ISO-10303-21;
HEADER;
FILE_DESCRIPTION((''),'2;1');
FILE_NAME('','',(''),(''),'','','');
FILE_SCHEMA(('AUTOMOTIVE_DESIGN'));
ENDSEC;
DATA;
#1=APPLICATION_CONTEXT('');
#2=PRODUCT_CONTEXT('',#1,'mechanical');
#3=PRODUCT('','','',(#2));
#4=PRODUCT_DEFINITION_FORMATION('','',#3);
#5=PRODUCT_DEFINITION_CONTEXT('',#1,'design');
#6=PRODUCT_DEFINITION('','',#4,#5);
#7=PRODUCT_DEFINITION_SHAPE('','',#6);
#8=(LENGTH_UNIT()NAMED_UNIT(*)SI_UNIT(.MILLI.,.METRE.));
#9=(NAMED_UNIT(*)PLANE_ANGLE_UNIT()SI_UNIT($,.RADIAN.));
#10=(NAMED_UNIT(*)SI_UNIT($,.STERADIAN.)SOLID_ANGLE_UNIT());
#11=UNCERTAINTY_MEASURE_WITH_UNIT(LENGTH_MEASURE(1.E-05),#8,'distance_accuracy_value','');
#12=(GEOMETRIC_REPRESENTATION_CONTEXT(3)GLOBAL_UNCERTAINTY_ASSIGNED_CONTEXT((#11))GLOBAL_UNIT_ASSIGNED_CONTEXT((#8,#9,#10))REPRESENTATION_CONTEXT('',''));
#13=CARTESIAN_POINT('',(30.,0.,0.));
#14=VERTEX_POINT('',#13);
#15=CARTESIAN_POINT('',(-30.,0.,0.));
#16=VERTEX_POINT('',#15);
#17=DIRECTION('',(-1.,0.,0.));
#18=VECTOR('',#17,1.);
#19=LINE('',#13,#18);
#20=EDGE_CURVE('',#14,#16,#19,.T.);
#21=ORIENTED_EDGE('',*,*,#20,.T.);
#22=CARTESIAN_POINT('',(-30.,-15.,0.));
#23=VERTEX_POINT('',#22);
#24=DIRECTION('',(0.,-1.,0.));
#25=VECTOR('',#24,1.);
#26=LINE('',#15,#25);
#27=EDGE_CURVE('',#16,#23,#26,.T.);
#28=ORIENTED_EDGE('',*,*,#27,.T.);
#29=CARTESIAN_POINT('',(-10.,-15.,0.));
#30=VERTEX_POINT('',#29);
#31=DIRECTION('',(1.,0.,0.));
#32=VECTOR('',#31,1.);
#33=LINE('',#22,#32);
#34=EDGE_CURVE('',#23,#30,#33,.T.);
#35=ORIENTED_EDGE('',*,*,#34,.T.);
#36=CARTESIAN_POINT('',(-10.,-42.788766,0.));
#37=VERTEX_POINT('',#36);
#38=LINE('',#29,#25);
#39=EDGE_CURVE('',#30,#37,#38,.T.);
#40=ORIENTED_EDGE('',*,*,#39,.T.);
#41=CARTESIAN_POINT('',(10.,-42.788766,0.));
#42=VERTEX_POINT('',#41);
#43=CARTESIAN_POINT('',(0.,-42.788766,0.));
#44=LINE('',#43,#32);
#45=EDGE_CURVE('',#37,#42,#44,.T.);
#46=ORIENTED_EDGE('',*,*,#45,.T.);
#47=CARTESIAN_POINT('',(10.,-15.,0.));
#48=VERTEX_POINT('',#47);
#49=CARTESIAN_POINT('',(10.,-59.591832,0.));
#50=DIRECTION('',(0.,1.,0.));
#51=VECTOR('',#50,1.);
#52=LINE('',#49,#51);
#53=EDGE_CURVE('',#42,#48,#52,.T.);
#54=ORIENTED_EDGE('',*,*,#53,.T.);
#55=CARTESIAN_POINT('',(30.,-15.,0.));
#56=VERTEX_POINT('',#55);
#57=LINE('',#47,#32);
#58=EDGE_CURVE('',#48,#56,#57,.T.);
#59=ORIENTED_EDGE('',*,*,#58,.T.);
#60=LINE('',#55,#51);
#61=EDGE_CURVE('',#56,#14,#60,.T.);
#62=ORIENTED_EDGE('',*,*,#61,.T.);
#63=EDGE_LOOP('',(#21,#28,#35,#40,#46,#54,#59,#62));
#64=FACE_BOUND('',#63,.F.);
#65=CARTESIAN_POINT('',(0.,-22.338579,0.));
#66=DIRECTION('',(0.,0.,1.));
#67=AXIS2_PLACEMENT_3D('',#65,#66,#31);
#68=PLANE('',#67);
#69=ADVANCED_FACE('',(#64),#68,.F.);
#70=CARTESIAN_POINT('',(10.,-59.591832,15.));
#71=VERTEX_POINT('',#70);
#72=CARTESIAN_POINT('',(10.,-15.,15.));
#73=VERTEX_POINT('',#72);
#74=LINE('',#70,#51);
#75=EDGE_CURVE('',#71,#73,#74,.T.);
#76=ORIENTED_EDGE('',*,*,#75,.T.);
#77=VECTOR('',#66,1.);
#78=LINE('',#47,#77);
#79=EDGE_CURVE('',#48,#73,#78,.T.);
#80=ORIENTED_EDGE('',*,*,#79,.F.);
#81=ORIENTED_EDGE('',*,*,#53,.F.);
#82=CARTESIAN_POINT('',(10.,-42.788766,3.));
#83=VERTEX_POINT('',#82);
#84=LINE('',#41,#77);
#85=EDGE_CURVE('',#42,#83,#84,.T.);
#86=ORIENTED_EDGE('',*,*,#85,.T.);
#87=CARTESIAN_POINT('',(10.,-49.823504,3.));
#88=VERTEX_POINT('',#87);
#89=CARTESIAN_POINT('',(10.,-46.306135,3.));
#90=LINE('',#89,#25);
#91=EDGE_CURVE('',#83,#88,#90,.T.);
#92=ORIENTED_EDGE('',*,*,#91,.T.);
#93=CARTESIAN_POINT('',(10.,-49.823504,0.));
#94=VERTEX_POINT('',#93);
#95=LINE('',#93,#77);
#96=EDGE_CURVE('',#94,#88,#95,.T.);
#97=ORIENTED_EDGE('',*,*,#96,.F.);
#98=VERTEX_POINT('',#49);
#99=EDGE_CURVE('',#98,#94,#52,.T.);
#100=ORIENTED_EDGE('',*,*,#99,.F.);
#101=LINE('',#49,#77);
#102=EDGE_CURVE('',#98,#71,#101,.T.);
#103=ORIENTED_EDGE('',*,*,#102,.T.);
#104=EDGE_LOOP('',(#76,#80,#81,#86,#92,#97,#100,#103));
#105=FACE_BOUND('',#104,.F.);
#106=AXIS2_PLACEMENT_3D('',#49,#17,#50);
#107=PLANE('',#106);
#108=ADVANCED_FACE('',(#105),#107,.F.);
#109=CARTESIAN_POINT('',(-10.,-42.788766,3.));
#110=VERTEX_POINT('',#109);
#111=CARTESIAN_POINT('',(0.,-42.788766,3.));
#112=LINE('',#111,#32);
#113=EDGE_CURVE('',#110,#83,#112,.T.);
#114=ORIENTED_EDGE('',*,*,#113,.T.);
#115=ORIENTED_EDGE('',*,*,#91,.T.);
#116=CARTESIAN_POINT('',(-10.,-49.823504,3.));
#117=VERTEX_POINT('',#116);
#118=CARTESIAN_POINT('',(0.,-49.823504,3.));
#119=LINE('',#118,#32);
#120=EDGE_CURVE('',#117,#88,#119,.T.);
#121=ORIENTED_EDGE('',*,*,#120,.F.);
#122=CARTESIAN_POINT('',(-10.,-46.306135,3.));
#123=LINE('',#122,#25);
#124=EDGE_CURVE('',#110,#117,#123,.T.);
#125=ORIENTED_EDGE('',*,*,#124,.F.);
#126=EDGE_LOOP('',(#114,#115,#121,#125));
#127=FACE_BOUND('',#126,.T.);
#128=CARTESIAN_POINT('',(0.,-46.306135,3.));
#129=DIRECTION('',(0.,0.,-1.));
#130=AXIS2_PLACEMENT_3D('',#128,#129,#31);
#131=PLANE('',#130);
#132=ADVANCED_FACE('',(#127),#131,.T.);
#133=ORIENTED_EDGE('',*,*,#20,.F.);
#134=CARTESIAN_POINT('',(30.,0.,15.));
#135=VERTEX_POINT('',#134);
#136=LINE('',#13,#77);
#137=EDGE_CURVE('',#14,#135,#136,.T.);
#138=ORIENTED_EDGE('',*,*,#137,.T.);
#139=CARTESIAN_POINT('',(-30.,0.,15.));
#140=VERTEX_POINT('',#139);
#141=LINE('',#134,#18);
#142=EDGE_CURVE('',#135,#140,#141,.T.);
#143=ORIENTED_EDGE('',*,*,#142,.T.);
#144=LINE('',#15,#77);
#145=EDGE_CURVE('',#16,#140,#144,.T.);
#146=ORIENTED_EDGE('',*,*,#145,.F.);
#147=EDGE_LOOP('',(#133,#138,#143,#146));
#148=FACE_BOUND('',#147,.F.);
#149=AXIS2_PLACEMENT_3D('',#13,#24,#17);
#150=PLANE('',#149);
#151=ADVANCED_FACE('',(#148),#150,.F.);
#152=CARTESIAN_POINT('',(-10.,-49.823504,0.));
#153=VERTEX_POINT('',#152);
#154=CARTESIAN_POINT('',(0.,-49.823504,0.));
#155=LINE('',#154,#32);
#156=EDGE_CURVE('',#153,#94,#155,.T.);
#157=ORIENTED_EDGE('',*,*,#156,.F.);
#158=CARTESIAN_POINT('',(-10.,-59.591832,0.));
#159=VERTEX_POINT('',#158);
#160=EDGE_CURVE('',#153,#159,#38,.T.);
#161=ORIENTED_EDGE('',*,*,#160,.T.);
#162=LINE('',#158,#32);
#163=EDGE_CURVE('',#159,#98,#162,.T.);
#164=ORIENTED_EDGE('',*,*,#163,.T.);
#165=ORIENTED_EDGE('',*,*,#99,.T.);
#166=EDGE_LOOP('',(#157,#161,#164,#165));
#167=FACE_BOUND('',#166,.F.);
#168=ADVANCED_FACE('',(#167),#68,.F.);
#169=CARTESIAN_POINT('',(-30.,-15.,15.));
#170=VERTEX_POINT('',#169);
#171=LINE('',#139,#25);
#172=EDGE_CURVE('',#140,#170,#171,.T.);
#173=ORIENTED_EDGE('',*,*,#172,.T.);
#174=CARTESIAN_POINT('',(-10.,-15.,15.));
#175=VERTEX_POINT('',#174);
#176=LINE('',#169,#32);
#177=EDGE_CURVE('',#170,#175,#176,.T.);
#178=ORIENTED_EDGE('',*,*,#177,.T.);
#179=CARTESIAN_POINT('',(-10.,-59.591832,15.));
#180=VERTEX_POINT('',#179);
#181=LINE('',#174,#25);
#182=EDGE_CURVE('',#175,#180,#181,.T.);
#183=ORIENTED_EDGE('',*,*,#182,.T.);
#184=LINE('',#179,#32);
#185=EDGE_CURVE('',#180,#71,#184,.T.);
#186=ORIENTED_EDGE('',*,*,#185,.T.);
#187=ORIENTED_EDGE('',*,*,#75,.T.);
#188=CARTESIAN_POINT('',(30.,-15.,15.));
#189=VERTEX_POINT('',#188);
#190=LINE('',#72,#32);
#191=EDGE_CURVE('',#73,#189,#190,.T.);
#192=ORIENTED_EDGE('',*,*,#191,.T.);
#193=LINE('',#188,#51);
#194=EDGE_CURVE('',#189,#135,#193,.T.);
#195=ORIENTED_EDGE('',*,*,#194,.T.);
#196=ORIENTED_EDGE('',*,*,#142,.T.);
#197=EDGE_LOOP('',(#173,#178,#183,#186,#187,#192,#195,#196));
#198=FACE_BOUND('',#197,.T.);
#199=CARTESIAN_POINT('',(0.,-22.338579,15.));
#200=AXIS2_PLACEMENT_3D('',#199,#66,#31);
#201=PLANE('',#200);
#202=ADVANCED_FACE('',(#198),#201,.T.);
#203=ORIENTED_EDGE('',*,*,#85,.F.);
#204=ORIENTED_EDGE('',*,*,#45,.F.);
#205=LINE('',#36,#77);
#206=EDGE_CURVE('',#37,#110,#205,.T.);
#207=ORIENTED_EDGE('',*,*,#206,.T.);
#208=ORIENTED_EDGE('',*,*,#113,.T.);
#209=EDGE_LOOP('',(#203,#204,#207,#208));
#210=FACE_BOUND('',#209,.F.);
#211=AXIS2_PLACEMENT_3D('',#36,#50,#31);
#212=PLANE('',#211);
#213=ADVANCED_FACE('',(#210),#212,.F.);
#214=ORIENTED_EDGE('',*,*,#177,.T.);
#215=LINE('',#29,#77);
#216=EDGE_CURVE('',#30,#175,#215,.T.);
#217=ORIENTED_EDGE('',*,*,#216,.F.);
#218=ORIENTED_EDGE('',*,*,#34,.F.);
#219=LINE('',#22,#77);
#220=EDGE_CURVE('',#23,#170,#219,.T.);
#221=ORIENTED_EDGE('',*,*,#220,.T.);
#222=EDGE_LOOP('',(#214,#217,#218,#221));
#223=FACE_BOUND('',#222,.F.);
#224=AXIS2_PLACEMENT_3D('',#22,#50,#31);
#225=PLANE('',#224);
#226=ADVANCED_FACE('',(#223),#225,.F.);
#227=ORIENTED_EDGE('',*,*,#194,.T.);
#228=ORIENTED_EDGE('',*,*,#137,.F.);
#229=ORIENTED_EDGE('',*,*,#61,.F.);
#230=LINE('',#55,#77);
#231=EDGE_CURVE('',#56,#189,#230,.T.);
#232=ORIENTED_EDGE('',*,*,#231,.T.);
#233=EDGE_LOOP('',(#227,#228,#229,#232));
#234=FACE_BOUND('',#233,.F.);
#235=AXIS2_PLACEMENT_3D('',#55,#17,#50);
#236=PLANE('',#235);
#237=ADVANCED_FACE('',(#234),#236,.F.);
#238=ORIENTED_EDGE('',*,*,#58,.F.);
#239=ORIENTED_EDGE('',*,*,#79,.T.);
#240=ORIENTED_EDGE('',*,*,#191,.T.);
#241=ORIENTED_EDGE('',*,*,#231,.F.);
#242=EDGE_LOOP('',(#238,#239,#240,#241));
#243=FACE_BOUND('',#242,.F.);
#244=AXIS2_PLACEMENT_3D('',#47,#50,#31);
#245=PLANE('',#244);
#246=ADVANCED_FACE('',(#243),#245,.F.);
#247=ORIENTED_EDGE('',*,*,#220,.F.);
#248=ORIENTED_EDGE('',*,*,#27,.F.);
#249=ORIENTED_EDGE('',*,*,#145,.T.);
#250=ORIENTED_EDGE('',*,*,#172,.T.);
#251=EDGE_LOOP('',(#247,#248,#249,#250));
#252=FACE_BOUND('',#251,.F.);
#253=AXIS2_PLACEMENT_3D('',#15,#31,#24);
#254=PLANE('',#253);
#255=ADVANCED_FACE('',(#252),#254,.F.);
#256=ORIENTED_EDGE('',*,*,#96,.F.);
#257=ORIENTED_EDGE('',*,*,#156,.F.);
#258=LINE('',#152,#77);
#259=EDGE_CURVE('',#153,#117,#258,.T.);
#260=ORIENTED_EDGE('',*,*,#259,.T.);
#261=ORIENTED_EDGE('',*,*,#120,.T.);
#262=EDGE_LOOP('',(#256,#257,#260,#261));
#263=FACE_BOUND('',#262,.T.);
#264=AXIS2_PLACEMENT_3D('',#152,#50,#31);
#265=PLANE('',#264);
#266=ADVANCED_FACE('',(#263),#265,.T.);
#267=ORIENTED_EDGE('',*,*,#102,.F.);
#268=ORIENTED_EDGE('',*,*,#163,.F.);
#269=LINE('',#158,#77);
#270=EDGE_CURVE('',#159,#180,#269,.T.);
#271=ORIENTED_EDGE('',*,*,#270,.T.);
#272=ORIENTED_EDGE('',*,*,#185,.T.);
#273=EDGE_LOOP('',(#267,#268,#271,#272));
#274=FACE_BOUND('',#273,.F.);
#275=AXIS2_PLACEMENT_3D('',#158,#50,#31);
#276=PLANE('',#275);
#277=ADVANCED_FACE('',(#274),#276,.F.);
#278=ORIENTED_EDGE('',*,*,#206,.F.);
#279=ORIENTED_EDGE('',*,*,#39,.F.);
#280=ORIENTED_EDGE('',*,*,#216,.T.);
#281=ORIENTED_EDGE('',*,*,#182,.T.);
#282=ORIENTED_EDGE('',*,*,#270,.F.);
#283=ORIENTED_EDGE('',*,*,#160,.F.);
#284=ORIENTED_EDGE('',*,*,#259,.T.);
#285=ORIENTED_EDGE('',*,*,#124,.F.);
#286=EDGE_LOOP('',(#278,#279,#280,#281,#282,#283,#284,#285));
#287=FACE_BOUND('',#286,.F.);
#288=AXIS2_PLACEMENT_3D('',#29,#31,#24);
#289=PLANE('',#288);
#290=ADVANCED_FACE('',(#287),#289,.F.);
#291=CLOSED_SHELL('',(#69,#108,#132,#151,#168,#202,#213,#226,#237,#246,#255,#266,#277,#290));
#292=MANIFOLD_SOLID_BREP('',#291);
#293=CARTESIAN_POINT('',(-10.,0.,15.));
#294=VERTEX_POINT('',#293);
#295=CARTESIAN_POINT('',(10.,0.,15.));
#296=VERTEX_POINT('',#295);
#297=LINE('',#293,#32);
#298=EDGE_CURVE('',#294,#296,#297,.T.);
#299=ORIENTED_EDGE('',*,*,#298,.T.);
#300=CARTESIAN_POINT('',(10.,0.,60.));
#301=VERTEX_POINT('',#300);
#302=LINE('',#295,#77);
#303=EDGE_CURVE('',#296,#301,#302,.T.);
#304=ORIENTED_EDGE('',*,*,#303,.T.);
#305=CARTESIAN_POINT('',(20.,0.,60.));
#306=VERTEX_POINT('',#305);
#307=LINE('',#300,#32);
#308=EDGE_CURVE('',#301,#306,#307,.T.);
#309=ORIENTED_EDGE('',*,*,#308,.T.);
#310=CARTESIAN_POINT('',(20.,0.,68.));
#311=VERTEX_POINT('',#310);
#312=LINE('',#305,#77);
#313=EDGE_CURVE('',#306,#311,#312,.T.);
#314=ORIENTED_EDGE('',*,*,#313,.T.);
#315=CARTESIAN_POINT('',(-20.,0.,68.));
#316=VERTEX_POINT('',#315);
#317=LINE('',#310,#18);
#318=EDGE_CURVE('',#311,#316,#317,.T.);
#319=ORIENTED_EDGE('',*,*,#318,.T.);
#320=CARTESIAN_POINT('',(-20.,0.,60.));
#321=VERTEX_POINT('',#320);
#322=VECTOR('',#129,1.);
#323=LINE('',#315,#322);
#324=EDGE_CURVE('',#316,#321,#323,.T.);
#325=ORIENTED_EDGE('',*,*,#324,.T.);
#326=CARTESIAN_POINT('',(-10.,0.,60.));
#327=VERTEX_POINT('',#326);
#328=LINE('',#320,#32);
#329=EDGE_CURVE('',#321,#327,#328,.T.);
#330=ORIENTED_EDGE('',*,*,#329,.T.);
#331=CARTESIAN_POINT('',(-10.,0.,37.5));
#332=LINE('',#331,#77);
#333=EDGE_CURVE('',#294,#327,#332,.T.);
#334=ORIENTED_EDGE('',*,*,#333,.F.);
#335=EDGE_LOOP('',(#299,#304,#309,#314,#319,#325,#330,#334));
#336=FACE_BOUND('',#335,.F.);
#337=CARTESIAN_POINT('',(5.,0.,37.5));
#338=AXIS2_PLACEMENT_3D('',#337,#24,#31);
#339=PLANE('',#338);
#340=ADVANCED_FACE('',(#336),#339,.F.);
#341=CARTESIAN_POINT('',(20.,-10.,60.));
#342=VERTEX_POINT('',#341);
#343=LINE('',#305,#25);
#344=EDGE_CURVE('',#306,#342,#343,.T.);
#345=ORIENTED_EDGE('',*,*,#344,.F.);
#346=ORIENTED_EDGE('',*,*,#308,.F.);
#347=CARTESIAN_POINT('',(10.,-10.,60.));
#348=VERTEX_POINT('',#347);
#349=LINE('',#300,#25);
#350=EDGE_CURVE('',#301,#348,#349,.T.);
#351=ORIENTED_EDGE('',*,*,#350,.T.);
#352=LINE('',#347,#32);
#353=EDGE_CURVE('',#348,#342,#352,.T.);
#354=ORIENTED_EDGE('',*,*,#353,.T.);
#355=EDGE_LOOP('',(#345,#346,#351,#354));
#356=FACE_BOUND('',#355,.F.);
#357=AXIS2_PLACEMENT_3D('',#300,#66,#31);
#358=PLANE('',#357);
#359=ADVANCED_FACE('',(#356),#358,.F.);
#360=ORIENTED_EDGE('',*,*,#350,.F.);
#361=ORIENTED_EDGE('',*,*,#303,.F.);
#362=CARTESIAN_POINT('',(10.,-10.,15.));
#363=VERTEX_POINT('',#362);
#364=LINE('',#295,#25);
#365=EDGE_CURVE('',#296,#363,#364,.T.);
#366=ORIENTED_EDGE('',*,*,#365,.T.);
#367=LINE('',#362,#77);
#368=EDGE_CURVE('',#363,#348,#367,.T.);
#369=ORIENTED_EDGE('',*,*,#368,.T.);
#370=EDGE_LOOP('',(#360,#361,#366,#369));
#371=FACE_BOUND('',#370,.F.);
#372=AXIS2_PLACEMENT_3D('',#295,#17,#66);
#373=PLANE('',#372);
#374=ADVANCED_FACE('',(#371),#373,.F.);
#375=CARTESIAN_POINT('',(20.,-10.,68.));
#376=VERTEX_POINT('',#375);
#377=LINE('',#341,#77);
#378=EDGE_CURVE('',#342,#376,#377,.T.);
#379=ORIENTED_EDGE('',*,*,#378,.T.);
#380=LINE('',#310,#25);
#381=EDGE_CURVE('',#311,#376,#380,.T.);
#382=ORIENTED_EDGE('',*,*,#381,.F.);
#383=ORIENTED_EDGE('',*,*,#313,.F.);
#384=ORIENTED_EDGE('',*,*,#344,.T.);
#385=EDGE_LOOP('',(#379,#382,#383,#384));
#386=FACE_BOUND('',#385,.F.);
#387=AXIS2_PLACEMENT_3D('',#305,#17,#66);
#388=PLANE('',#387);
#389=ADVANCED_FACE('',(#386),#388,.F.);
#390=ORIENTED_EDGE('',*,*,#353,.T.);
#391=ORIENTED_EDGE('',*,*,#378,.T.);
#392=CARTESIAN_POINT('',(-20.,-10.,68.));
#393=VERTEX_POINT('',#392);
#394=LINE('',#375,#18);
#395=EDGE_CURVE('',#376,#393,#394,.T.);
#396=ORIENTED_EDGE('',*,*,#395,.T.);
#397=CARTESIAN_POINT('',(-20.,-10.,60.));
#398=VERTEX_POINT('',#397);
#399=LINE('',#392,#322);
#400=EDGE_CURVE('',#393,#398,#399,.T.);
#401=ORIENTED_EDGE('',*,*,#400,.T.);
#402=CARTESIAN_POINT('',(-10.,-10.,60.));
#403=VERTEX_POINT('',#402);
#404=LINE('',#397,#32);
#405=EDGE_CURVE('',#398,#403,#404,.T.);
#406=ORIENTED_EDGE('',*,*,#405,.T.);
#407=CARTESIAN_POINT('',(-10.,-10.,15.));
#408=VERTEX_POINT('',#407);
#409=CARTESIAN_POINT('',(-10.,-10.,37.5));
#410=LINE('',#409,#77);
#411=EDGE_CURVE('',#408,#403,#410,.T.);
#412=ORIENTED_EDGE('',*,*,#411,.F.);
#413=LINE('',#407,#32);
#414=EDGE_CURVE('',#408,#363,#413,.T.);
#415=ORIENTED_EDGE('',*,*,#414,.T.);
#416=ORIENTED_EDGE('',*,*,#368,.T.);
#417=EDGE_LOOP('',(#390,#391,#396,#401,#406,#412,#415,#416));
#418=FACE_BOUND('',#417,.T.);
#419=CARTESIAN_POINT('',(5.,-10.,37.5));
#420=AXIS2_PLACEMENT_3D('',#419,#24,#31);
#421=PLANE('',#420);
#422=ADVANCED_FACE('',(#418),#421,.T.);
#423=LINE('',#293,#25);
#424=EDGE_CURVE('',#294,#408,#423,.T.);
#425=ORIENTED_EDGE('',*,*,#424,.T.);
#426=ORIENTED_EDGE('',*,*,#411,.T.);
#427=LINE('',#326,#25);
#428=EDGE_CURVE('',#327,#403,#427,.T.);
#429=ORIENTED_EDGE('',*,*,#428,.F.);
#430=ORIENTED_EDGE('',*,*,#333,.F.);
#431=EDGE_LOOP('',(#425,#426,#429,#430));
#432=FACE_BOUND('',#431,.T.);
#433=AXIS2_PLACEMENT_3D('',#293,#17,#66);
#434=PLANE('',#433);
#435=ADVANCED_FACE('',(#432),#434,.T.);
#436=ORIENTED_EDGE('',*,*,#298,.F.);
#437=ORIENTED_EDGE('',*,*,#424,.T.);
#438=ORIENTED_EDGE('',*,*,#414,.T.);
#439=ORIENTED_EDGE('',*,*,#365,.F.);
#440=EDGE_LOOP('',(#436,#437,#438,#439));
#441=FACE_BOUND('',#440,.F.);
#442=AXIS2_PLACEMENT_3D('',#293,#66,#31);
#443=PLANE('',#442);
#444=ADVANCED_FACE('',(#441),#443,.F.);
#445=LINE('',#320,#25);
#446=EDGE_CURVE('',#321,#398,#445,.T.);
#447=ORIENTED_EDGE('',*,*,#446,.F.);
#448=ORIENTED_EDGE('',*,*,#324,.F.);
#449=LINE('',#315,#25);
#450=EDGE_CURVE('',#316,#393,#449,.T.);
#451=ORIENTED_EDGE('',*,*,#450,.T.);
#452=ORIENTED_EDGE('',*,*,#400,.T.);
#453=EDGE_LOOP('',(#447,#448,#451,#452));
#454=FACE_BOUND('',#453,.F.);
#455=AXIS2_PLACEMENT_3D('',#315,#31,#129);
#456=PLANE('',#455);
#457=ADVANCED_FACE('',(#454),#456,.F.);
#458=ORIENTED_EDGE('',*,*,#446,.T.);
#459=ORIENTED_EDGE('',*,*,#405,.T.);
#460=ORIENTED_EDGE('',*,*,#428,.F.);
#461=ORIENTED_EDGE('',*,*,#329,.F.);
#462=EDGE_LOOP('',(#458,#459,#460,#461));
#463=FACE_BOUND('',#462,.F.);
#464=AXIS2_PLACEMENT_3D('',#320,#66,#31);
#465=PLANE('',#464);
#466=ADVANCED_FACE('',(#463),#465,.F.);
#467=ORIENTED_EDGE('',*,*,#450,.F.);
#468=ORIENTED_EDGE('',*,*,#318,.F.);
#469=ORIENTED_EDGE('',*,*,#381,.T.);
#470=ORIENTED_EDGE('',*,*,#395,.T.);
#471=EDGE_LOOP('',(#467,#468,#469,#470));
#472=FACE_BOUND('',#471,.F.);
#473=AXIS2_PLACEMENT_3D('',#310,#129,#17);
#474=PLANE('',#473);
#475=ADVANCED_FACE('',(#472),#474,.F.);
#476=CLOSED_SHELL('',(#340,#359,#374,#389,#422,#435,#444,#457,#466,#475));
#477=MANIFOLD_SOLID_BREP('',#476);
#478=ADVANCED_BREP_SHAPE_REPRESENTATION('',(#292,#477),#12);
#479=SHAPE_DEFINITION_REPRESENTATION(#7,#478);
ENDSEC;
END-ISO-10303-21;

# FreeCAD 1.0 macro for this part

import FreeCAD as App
import Part
import Sketcher


def add_polygon(sketch, points):
    """Adds a closed chain of lines whose ends are joined by coincident constraints."""
    first, n = sketch.GeometryCount, len(points)
    for a, b in zip(points, points[1:] + points[:1]):
        sketch.addGeometry(Part.LineSegment(App.Vector(*a, 0), App.Vector(*b, 0)), False)
    for i in range(n):
        sketch.addConstraint(Sketcher.Constraint("Coincident", first + i, 2, first + (i + 1) % n, 1))

doc = App.newDocument("Part")
body = doc.addObject("PartDesign::Body", "Body")

# Sketch on XY plane
sketch1 = body.newObject("Sketcher::SketchObject", "Sketch")
sketch1.AttachmentSupport = (doc.getObject("XY_Plane"), [""])
sketch1.MapMode = "FlatFace"
add_polygon(sketch1, [(30, 0), (-30, 0), (-30, -15), (-10, -15), (-10, -60), (10, -60), (10, -15), (30, -15)])  # lines 0-7
sketch1.addConstraint([
    Sketcher.Constraint("Horizontal", 0),
    Sketcher.Constraint("Vertical", 1),
    Sketcher.Constraint("Horizontal", 2),
    Sketcher.Constraint("Vertical", 3),
    Sketcher.Constraint("Horizontal", 4),
    Sketcher.Constraint("Vertical", 5),
    Sketcher.Constraint("Horizontal", 6),
    Sketcher.Constraint("Vertical", 7),
    Sketcher.Constraint("Symmetric", 0, 2, 7, 2, -1, 1),
    Sketcher.Constraint("Symmetric", 2, 2, 5, 2, -2),
    Sketcher.Constraint("Equal", 2, 4),
    Sketcher.Constraint("DistanceX", 0, 2, 0, 1, 60.0),
    Sketcher.Constraint("DistanceY", 1, 2, 1, 1, 15.0),
    Sketcher.Constraint("DistanceY", 3, 2, 3, 1, 44.591832),
])
pad1 = body.newObject("PartDesign::Pad", "Pad")
pad1.Profile = sketch1
pad1.Length = 15

# Sketch on XY plane
sketch2 = body.newObject("Sketcher::SketchObject", "Sketch001")
sketch2.AttachmentSupport = (doc.getObject("XY_Plane"), [""])
sketch2.MapMode = "FlatFace"
add_polygon(sketch2, [(-10, -50), (-10, -43), (10, -43), (10, -50)])  # lines 0-3
sketch2.addConstraint([
    Sketcher.Constraint("Vertical", 0),
    Sketcher.Constraint("Horizontal", 1),
    Sketcher.Constraint("Vertical", 2),
    Sketcher.Constraint("Horizontal", 3),
    Sketcher.Constraint("DistanceX", 1, 1, 1, 2, 20.0),
    Sketcher.Constraint("DistanceX", 0, 2, -1, 1, 10.0),
    Sketcher.Constraint("DistanceY", 0, 1, 0, 2, 7.034738),
    Sketcher.Constraint("DistanceY", 0, 2, -1, 1, 42.788766),
])
pocket1 = body.newObject("PartDesign::Pocket", "Pocket")
pocket1.Profile = sketch2
pocket1.Length = 3
pocket1.Reversed = True
body2 = doc.addObject("PartDesign::Body", "Body001")

# Sketch on XZ plane
sketch3 = body2.newObject("Sketcher::SketchObject", "Sketch002")
sketch3.AttachmentSupport = (doc.getObject("XZ_Plane001"), [""])
sketch3.MapMode = "FlatFace"
add_polygon(sketch3, [(10, 15), (10, 60), (20, 60), (20, 68), (-20, 68), (-20, 60), (-10, 60), (-10, 15)])  # lines 0-7
sketch3.addConstraint([
    Sketcher.Constraint("Vertical", 0),
    Sketcher.Constraint("Horizontal", 1),
    Sketcher.Constraint("Vertical", 2),
    Sketcher.Constraint("Horizontal", 3),
    Sketcher.Constraint("Vertical", 4),
    Sketcher.Constraint("Horizontal", 5),
    Sketcher.Constraint("Vertical", 6),
    Sketcher.Constraint("Horizontal", 7),
    Sketcher.Constraint("Symmetric", 1, 2, 4, 2, -2),
    Sketcher.Constraint("Equal", 1, 5),
    Sketcher.Constraint("DistanceX", 1, 1, 1, 2, 10.0),
    Sketcher.Constraint("DistanceX", 3, 2, 3, 1, 40.0),
    Sketcher.Constraint("DistanceY", 0, 1, 0, 2, 45.0),
    Sketcher.Constraint("DistanceY", 2, 1, 2, 2, 8.0),
    Sketcher.Constraint("DistanceY", -1, 1, 0, 2, 60.0),
])
pad2 = body2.newObject("PartDesign::Pad", "Pad001")
pad2.Profile = sketch3
pad2.Length = 10

doc.recompute()
